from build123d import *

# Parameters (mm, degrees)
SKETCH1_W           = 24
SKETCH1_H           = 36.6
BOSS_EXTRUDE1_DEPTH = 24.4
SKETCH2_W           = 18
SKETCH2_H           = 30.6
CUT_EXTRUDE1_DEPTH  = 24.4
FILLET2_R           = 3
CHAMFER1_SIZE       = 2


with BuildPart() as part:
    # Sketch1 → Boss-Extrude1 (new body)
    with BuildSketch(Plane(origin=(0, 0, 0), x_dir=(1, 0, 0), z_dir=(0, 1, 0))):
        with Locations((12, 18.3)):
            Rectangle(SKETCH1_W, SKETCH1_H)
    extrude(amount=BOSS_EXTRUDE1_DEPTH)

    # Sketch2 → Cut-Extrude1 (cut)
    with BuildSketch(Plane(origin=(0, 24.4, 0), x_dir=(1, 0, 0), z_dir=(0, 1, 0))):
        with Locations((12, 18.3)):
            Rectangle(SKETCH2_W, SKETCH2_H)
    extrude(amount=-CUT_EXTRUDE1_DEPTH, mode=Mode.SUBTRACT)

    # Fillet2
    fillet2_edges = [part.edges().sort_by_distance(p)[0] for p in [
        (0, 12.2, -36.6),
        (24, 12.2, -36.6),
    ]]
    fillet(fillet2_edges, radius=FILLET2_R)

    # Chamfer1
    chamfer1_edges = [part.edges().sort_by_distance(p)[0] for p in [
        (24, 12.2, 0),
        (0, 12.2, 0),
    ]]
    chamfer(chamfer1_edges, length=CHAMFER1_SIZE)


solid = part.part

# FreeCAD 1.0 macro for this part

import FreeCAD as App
import Part
import Sketcher


def edges_at(feature, points):
    """Names of the edges that pass closest to the given points."""
    edges = feature.Shape.Edges
    near = lambda p: min(range(len(edges)), key=lambda i: edges[i].distToShape(Part.Vertex(*p))[0])
    return sorted({f"Edge{near(p) + 1}" for p in points})

doc = App.newDocument("Part")
params = doc.addObject("Spreadsheet::Sheet", "Params")
for row, (alias, value) in enumerate([
    ("sketch1_width", "24 mm"),
    ("sketch1_height", "36.6 mm"),
    ("pad1_length", "24.4 mm"),
    ("sketch2_width", "18 mm"),
    ("sketch2_height", "30.6 mm"),
    ("pocket1_length", "24.4 mm"),
    ("fillet_radius", "3 mm"),
    ("chamfer_size", "2 mm"),
], start=1):
    params.set(f"A{row}", alias)
    params.set(f"B{row}", "=" + value)
    params.setAlias(f"B{row}", alias)

body = doc.addObject("PartDesign::Body", "Body")

sketch1 = doc.addObject("Sketcher::SketchObject", "Sketch")
body.addObject(sketch1)
sketch1.AttachmentSupport = (doc.XZ_Plane, [""])
sketch1.MapMode = "FlatFace"
sketch1.addGeometry(Part.LineSegment(App.Vector(0, -37, 0), App.Vector(0, 0, 0)), False)
sketch1.addGeometry(Part.LineSegment(App.Vector(0, 0, 0), App.Vector(24, 0, 0)), False)
sketch1.addGeometry(Part.LineSegment(App.Vector(24, 0, 0), App.Vector(24, -37, 0)), False)
sketch1.addGeometry(Part.LineSegment(App.Vector(24, -37, 0), App.Vector(0, -37, 0)), False)
sketch1.addConstraint(Sketcher.Constraint("Coincident", 0, 2, 1, 1))
sketch1.addConstraint(Sketcher.Constraint("Coincident", 1, 2, 2, 1))
sketch1.addConstraint(Sketcher.Constraint("Coincident", 2, 2, 3, 1))
sketch1.addConstraint(Sketcher.Constraint("Coincident", 3, 2, 0, 1))
sketch1.addConstraint(Sketcher.Constraint("Vertical", 0))
sketch1.addConstraint(Sketcher.Constraint("Horizontal", 1))
sketch1.addConstraint(Sketcher.Constraint("Vertical", 2))
sketch1.addConstraint(Sketcher.Constraint("Horizontal", 3))
sketch1.addConstraint(Sketcher.Constraint("Coincident", 0, 2, -1, 1))
sketch1.addConstraint(Sketcher.Constraint("DistanceX", 1, 1, 1, 2, 24.0))
sketch1.addConstraint(Sketcher.Constraint("DistanceY", 0, 1, 0, 2, 36.6))
sketch1.setExpression("Constraints[9]", "Params.sketch1_width")
sketch1.setExpression("Constraints[10]", "Params.sketch1_height")
pad1 = doc.addObject("PartDesign::Pad", "Pad")
body.addObject(pad1)
pad1.Profile = sketch1
pad1.setExpression("Length", "Params.pad1_length")
pad1.Reversed = True

sketch2 = doc.addObject("Sketcher::SketchObject", "Sketch001")
body.addObject(sketch2)
sketch2.AttachmentSupport = (doc.XZ_Plane, [""])
sketch2.MapMode = "FlatFace"
sketch2.AttachmentOffset = App.Placement(App.Vector(0, 0, -24.4), App.Rotation())
sketch2.addGeometry(Part.LineSegment(App.Vector(3, -34, 0), App.Vector(3, -3, 0)), False)
sketch2.addGeometry(Part.LineSegment(App.Vector(3, -3, 0), App.Vector(21, -3, 0)), False)
sketch2.addGeometry(Part.LineSegment(App.Vector(21, -3, 0), App.Vector(21, -34, 0)), False)
sketch2.addGeometry(Part.LineSegment(App.Vector(21, -34, 0), App.Vector(3, -34, 0)), False)
sketch2.addConstraint(Sketcher.Constraint("Coincident", 0, 2, 1, 1))
sketch2.addConstraint(Sketcher.Constraint("Coincident", 1, 2, 2, 1))
sketch2.addConstraint(Sketcher.Constraint("Coincident", 2, 2, 3, 1))
sketch2.addConstraint(Sketcher.Constraint("Coincident", 3, 2, 0, 1))
sketch2.addConstraint(Sketcher.Constraint("Vertical", 0))
sketch2.addConstraint(Sketcher.Constraint("Horizontal", 1))
sketch2.addConstraint(Sketcher.Constraint("Vertical", 2))
sketch2.addConstraint(Sketcher.Constraint("Horizontal", 3))
sketch2.addConstraint(Sketcher.Constraint("DistanceX", 1, 1, 1, 2, 18.0))
sketch2.addConstraint(Sketcher.Constraint("DistanceY", 0, 1, 0, 2, 30.6))
sketch2.addConstraint(Sketcher.Constraint("DistanceX", -1, 1, 0, 2, 3.0))
sketch2.addConstraint(Sketcher.Constraint("DistanceY", 0, 2, -1, 1, 3.0))
sketch2.setExpression("Constraints[8]", "Params.sketch2_width")
sketch2.setExpression("Constraints[9]", "Params.sketch2_height")
pocket1 = doc.addObject("PartDesign::Pocket", "Pocket")
body.addObject(pocket1)
pocket1.Profile = sketch2
pocket1.setExpression("Length", "Params.pocket1_length")
pocket1.Reversed = True
doc.recompute()

fillet = doc.addObject("PartDesign::Fillet", "Fillet")
body.addObject(fillet)
fillet.Base = (pocket1, edges_at(pocket1, [(0, 12.2, -36.6), (24, 12.2, -36.6)]))
fillet.setExpression("Radius", "Params.fillet_radius")
doc.recompute()

chamfer = doc.addObject("PartDesign::Chamfer", "Chamfer")
body.addObject(chamfer)
chamfer.Base = (fillet, edges_at(fillet, [(24, 12.2, 0), (0, 12.2, 0)]))
chamfer.setExpression("Size", "Params.chamfer_size")

doc.recompute()
